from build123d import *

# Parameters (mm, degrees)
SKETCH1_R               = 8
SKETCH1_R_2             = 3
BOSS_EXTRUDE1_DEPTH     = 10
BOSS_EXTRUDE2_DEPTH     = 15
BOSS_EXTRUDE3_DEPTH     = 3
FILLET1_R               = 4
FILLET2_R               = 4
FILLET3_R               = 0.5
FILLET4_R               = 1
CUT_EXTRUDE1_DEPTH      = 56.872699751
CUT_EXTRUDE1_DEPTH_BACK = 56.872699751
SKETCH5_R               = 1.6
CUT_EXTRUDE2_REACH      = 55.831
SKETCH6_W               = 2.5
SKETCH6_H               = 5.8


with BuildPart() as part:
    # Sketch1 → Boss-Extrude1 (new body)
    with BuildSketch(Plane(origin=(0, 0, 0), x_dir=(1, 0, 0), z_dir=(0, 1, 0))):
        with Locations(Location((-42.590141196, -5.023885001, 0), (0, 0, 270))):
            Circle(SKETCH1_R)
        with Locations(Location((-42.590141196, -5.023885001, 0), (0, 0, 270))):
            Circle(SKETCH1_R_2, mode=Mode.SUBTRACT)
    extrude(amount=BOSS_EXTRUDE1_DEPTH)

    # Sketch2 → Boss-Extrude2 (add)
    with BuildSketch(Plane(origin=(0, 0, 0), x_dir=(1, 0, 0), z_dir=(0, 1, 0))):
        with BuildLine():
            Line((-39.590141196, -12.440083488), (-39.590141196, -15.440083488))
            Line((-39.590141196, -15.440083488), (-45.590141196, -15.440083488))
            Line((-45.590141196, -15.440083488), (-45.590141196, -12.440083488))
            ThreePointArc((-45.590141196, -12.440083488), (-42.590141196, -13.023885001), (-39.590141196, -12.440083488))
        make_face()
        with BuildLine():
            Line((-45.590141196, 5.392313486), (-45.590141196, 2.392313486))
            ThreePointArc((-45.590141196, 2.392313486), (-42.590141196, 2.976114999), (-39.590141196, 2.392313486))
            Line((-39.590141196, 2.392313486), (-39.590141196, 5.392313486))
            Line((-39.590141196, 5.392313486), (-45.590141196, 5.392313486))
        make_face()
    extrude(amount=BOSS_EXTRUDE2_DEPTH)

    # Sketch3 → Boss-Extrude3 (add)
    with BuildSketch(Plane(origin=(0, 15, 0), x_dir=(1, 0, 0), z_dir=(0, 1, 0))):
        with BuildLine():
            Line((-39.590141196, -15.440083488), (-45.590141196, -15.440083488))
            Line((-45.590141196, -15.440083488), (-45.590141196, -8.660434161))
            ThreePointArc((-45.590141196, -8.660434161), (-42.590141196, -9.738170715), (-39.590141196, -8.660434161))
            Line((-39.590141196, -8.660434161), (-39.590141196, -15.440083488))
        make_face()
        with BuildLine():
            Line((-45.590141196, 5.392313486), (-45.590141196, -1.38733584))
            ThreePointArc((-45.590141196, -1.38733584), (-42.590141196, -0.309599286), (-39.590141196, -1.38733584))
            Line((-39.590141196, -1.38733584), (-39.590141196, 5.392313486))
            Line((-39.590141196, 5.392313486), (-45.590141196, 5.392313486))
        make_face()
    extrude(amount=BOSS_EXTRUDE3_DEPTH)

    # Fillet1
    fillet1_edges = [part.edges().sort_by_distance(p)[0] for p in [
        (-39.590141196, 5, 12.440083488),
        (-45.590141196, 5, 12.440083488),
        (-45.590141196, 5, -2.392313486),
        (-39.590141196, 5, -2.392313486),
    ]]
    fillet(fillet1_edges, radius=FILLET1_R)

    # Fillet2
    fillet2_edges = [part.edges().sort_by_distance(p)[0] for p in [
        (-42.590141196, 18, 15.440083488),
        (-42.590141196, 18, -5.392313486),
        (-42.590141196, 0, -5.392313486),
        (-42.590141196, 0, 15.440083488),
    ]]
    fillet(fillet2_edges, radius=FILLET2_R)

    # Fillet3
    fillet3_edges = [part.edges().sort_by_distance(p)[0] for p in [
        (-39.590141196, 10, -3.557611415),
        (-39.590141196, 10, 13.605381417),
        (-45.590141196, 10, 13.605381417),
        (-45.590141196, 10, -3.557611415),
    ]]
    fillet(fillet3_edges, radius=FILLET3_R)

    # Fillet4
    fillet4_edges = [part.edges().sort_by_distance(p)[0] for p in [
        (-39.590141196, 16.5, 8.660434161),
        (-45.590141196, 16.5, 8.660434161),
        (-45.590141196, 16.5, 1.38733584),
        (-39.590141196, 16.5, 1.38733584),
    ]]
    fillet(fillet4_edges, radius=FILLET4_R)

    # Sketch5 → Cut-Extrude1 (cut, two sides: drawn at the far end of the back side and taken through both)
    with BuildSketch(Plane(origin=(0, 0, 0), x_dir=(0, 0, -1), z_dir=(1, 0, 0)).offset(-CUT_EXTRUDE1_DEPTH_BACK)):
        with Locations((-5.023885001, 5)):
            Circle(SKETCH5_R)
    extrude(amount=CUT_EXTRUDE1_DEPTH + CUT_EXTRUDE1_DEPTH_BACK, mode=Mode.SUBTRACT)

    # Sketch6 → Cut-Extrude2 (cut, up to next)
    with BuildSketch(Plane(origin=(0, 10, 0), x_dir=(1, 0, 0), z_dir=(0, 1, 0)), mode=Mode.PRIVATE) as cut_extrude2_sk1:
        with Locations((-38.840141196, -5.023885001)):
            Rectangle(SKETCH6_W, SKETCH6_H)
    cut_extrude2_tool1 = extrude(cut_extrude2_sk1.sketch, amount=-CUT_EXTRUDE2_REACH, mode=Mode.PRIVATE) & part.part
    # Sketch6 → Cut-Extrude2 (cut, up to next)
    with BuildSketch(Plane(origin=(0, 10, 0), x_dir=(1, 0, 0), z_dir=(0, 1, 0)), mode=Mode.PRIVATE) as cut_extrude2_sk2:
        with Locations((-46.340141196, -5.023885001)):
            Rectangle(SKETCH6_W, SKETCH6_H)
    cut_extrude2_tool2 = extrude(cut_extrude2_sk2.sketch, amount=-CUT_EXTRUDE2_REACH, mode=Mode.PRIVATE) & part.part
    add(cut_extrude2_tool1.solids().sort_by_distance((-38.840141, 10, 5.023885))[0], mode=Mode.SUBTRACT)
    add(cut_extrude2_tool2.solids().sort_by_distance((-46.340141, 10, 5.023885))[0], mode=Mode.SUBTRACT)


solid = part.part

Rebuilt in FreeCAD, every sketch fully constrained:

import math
import FreeCAD as App
import Part
import Sketcher

V = App.Vector


def edges_at(feature, points):
    """Names of the edges that pass closest to the given points."""
    edges = feature.Shape.Edges
    near = lambda p: min(range(len(edges)), key=lambda i: edges[i].distToShape(Part.Vertex(*p))[0])
    return sorted({f"Edge{near(p) + 1}" for p in points})


def add_polygon(sketch, points):
    """Adds a closed chain of lines whose ends are joined by coincident constraints."""
    first, n = sketch.GeometryCount, len(points)
    for a, b in zip(points, points[1:] + points[:1]):
        sketch.addGeometry(Part.LineSegment(App.Vector(*a, 0), App.Vector(*b, 0)), False)
    for i in range(n):
        sketch.addConstraint(Sketcher.Constraint("Coincident", first + i, 2, first + (i + 1) % n, 1))

doc = App.newDocument("Part")
params = doc.addObject("Spreadsheet::Sheet", "Params")
for row, (alias, value) in enumerate([
    ("sketch1_diameter", "16 mm"),
    ("sketch1_diameter2", "6 mm"),
    ("pad1_length", "10 mm"),
    ("sketch2_radius", "8 mm"),
    ("sketch2_width", "6 mm"),
    ("sketch2_height", "3 mm"),
    ("pad2_length", "15 mm"),
    ("sketch3_width", "6 mm"),
    ("pad3_length", "3 mm"),
    ("fillet_radius", "4 mm"),
    ("fillet2_radius", "4 mm"),
    ("fillet3_radius", "0.5 mm"),
    ("fillet4_radius", "1 mm"),
    ("sketch4_diameter", "3.2 mm"),
    ("sketch5_width", "2.5 mm"),
    ("sketch5_height", "5.8 mm"),
    ("pocket2_length", "10 mm"),
    ("sketch6_width", "2.5 mm"),
    ("sketch6_height", "5.8 mm"),
    ("pocket3_length", "10 mm"),
], start=1):
    params.set(f"A{row}", alias)
    params.set(f"B{row}", "=" + value)
    params.setAlias(f"B{row}", alias)

body = doc.addObject("PartDesign::Body", "Body")

# Sketch on XZ plane
sketch1 = body.newObject("Sketcher::SketchObject", "Sketch")
sketch1.AttachmentSupport = (doc.getObject("XZ_Plane"), [""])
sketch1.MapMode = "FlatFace"
sketch1.addGeometry(Part.Circle(V(-42.6, 5, 0), V(0, 0, 1), 8), False)
sketch1.addGeometry(Part.Circle(V(-42.6, 5, 0), V(0, 0, 1), 3), False)
sketch1.addConstraint(Sketcher.Constraint("Coincident", 1, 3, 0, 3))
sketch1.addConstraint(Sketcher.Constraint("Diameter", 0, 16.0))
sketch1.addConstraint(Sketcher.Constraint("Diameter", 1, 6.0))
sketch1.addConstraint(Sketcher.Constraint("DistanceX", 0, 3, -1, 1, 42.590141))
sketch1.addConstraint(Sketcher.Constraint("DistanceY", -1, 1, 0, 3, 5.023885))
sketch1.setExpression("Constraints[1]", "Params.sketch1_diameter")
sketch1.setExpression("Constraints[2]", "Params.sketch1_diameter2")
pad1 = body.newObject("PartDesign::Pad", "Pad")
pad1.Profile = sketch1
pad1.setExpression("Length", "Params.pad1_length")
pad1.Reversed = True

# Sketch on XZ plane
sketch2 = body.newObject("Sketcher::SketchObject", "Sketch001")
sketch2.AttachmentSupport = (doc.getObject("XZ_Plane"), [""])
sketch2.MapMode = "FlatFace"
sketch2.addGeometry(Part.LineSegment(V(-39.6, 15.4, 0), V(-39.6, 12.4, 0)), False)
sketch2.addGeometry(Part.ArcOfCircle(Part.Circle(V(-42.6, 5, 0), V(0, 0, 1), 8), math.radians(68), math.radians(112)), False)
sketch2.addGeometry(Part.LineSegment(V(-45.6, 12.4, 0), V(-45.6, 15.4, 0)), False)
sketch2.addGeometry(Part.LineSegment(V(-45.6, 15.4, 0), V(-39.6, 15.4, 0)), False)
sketch2.addGeometry(Part.LineSegment(V(-45.6, -5.4, 0), V(-45.6, -2.4, 0)), False)
sketch2.addGeometry(Part.ArcOfCircle(Part.Circle(V(-42.6, 5, 0), V(0, 0, 1), 8), math.radians(-112), math.radians(-68)), False)
sketch2.addGeometry(Part.LineSegment(V(-39.6, -2.4, 0), V(-39.6, -5.4, 0)), False)
sketch2.addGeometry(Part.LineSegment(V(-39.6, -5.4, 0), V(-45.6, -5.4, 0)), False)
sketch2.addConstraint(Sketcher.Constraint("Coincident", 0, 2, 1, 1))
sketch2.addConstraint(Sketcher.Constraint("Coincident", 1, 2, 2, 1))
sketch2.addConstraint(Sketcher.Constraint("Coincident", 2, 2, 3, 1))
sketch2.addConstraint(Sketcher.Constraint("Coincident", 3, 2, 0, 1))
sketch2.addConstraint(Sketcher.Constraint("Coincident", 4, 2, 5, 1))
sketch2.addConstraint(Sketcher.Constraint("Coincident", 5, 2, 6, 1))
sketch2.addConstraint(Sketcher.Constraint("Coincident", 6, 2, 7, 1))
sketch2.addConstraint(Sketcher.Constraint("Coincident", 7, 2, 4, 1))
sketch2.addConstraint(Sketcher.Constraint("Vertical", 0))
sketch2.addConstraint(Sketcher.Constraint("Vertical", 2))
sketch2.addConstraint(Sketcher.Constraint("Horizontal", 3))
sketch2.addConstraint(Sketcher.Constraint("Vertical", 4))
sketch2.addConstraint(Sketcher.Constraint("Vertical", 6))
sketch2.addConstraint(Sketcher.Constraint("Horizontal", 7))
sketch2.addConstraint(Sketcher.Constraint("Coincident", 5, 3, 1, 3))
sketch2.addConstraint(Sketcher.Constraint("Equal", 1, 5))
sketch2.addConstraint(Sketcher.Constraint("Horizontal", 0, 2, 1, 2))
sketch2.addConstraint(Sketcher.Constraint("Horizontal", 4, 2, 5, 2))
sketch2.addConstraint(Sketcher.Constraint("Vertical", 2, 2, 4, 2))
sketch2.addConstraint(Sketcher.Constraint("Equal", 2, 4))
sketch2.addConstraint(Sketcher.Constraint("Radius", 1, 8.0))
sketch2.addConstraint(Sketcher.Constraint("DistanceX", 3, 1, 3, 2, 6.0))
sketch2.addConstraint(Sketcher.Constraint("DistanceY", 0, 2, 0, 1, 3.0))
sketch2.addConstraint(Sketcher.Constraint("DistanceX", 1, 3, -1, 1, 42.590141))
sketch2.addConstraint(Sketcher.Constraint("DistanceY", -1, 1, 1, 3, 5.023885))
sketch2.setExpression("Constraints[20]", "Params.sketch2_radius")
sketch2.setExpression("Constraints[21]", "Params.sketch2_width")
sketch2.setExpression("Constraints[22]", "Params.sketch2_height")
pad2 = body.newObject("PartDesign::Pad", "Pad001")
pad2.Profile = sketch2
pad2.setExpression("Length", "Params.pad2_length")
pad2.Reversed = True

# Sketch on XZ plane
sketch3 = body.newObject("Sketcher::SketchObject", "Sketch002")
sketch3.AttachmentSupport = (doc.getObject("XZ_Plane"), [""])
sketch3.MapMode = "FlatFace"
sketch3.AttachmentOffset = App.Placement(V(0, 0, -15), App.Rotation())
sketch3.addGeometry(Part.LineSegment(V(-45.6, 15.4, 0), V(-39.6, 15.4, 0)), False)
sketch3.addGeometry(Part.LineSegment(V(-39.6, 15.4, 0), V(-39.6, 8.7, 0)), False)
sketch3.addGeometry(Part.ArcOfCircle(Part.Circle(V(-42.6, 5, 0), V(0, 0, 1), 4.7), math.radians(50), math.radians(130)), False)
sketch3.addGeometry(Part.LineSegment(V(-45.6, 8.7, 0), V(-45.6, 15.4, 0)), False)
sketch3.addGeometry(Part.LineSegment(V(-45.6, -5.4, 0), V(-45.6, 1.4, 0)), False)
sketch3.addGeometry(Part.ArcOfCircle(Part.Circle(V(-42.6, 5, 0), V(0, 0, 1), 4.7), math.radians(-130), math.radians(-50)), False)
sketch3.addGeometry(Part.LineSegment(V(-39.6, 1.4, 0), V(-39.6, -5.4, 0)), False)
sketch3.addGeometry(Part.LineSegment(V(-39.6, -5.4, 0), V(-45.6, -5.4, 0)), False)
sketch3.addConstraint(Sketcher.Constraint("Coincident", 0, 2, 1, 1))
sketch3.addConstraint(Sketcher.Constraint("Coincident", 1, 2, 2, 1))
sketch3.addConstraint(Sketcher.Constraint("Coincident", 2, 2, 3, 1))
sketch3.addConstraint(Sketcher.Constraint("Coincident", 3, 2, 0, 1))
sketch3.addConstraint(Sketcher.Constraint("Coincident", 4, 2, 5, 1))
sketch3.addConstraint(Sketcher.Constraint("Coincident", 5, 2, 6, 1))
sketch3.addConstraint(Sketcher.Constraint("Coincident", 6, 2, 7, 1))
sketch3.addConstraint(Sketcher.Constraint("Coincident", 7, 2, 4, 1))
sketch3.addConstraint(Sketcher.Constraint("Horizontal", 0))
sketch3.addConstraint(Sketcher.Constraint("Vertical", 1))
sketch3.addConstraint(Sketcher.Constraint("Vertical", 3))
sketch3.addConstraint(Sketcher.Constraint("Vertical", 4))
sketch3.addConstraint(Sketcher.Constraint("Vertical", 6))
sketch3.addConstraint(Sketcher.Constraint("Horizontal", 7))
sketch3.addConstraint(Sketcher.Constraint("Coincident", 5, 3, 2, 3))
sketch3.addConstraint(Sketcher.Constraint("Equal", 2, 5))
sketch3.addConstraint(Sketcher.Constraint("Horizontal", 1, 2, 2, 2))
sketch3.addConstraint(Sketcher.Constraint("Horizontal", 4, 2, 5, 2))
sketch3.addConstraint(Sketcher.Constraint("Vertical", 3, 2, 4, 2))
sketch3.addConstraint(Sketcher.Constraint("Equal", 3, 4))
sketch3.addConstraint(Sketcher.Constraint("DistanceX", 0, 1, 0, 2, 6.0))
sketch3.addConstraint(Sketcher.Constraint("Radius", 2, 4.714286))
sketch3.addConstraint(Sketcher.Constraint("DistanceY", 1, 2, 1, 1, 6.779649))
sketch3.addConstraint(Sketcher.Constraint("DistanceX", 2, 3, -1, 1, 42.590141))
sketch3.addConstraint(Sketcher.Constraint("DistanceY", -1, 1, 2, 3, 5.023885))
sketch3.setExpression("Constraints[20]", "Params.sketch3_width")
pad3 = body.newObject("PartDesign::Pad", "Pad002")
pad3.Profile = sketch3
pad3.setExpression("Length", "Params.pad3_length")
pad3.Reversed = True
doc.recompute()

fillet = body.newObject("PartDesign::Fillet", "Fillet")
fillet.Base = (pad3, edges_at(pad3, [
    (-39.59, 5, 12.44),
    (-45.59, 5, 12.44),
    (-45.59, 5, -2.392),
    (-39.59, 5, -2.392),
]))
fillet.setExpression("Radius", "Params.fillet_radius")
doc.recompute()

fillet2 = body.newObject("PartDesign::Fillet", "Fillet001")
fillet2.Base = (fillet, edges_at(fillet, [
    (-42.59, 18, 15.44),
    (-42.59, 18, -5.392),
    (-42.59, 0, -5.392),
    (-42.59, 0, 15.44),
]))
fillet2.setExpression("Radius", "Params.fillet2_radius")
doc.recompute()

fillet3 = body.newObject("PartDesign::Fillet", "Fillet002")
fillet3.Base = (fillet2, edges_at(fillet2, [
    (-39.59, 10, -3.558),
    (-39.59, 10, 13.605),
    (-45.59, 10, 13.605),
    (-45.59, 10, -3.558),
]))
fillet3.setExpression("Radius", "Params.fillet3_radius")
doc.recompute()

fillet4 = body.newObject("PartDesign::Fillet", "Fillet003")
fillet4.Base = (fillet3, edges_at(fillet3, [
    (-39.59, 16.5, 8.66),
    (-45.59, 16.5, 8.66),
    (-45.59, 16.5, 1.387),
    (-39.59, 16.5, 1.387),
]))
fillet4.setExpression("Radius", "Params.fillet4_radius")

# Sketch on YZ plane
sketch4 = body.newObject("Sketcher::SketchObject", "Sketch003")
sketch4.AttachmentSupport = (doc.getObject("YZ_Plane"), [""])
sketch4.MapMode = "FlatFace"
sketch4.addGeometry(Part.Circle(V(5, 5, 0), V(0, 0, 1), 1.6), False)
sketch4.addConstraint(Sketcher.Constraint("Diameter", 0, 3.2))
sketch4.addConstraint(Sketcher.Constraint("DistanceX", -1, 1, 0, 3, 5.0))
sketch4.addConstraint(Sketcher.Constraint("DistanceY", -1, 1, 0, 3, 5.023885))
sketch4.setExpression("Constraints[0]", "Params.sketch4_diameter")
pocket1 = body.newObject("PartDesign::Pocket", "Pocket")
pocket1.Profile = sketch4
pocket1.Type = "ThroughAll"
pocket1.Midplane = True

# Sketch on XZ plane
sketch5 = body.newObject("Sketcher::SketchObject", "Sketch004")
sketch5.AttachmentSupport = (doc.getObject("XZ_Plane"), [""])
sketch5.MapMode = "FlatFace"
sketch5.AttachmentOffset = App.Placement(V(0, 0, -10), App.Rotation())
add_polygon(sketch5, [(-40.1, 2.1), (-40.1, 7.9), (-37.6, 7.9), (-37.6, 2.1)])  # lines 0-3
sketch5.addConstraint(Sketcher.Constraint("Vertical", 0))
sketch5.addConstraint(Sketcher.Constraint("Horizontal", 1))
sketch5.addConstraint(Sketcher.Constraint("Vertical", 2))
sketch5.addConstraint(Sketcher.Constraint("Horizontal", 3))
sketch5.addConstraint(Sketcher.Constraint("DistanceX", 1, 1, 1, 2, 2.5))
sketch5.addConstraint(Sketcher.Constraint("DistanceY", 0, 1, 0, 2, 5.8))
sketch5.addConstraint(Sketcher.Constraint("DistanceX", 0, 2, -1, 1, 40.090141))
sketch5.addConstraint(Sketcher.Constraint("DistanceY", -1, 1, 0, 2, 7.923885))
sketch5.setExpression("Constraints[8]", "Params.sketch5_width")
sketch5.setExpression("Constraints[9]", "Params.sketch5_height")
pocket2 = body.newObject("PartDesign::Pocket", "Pocket001")
pocket2.Profile = sketch5
pocket2.setExpression("Length", "Params.pocket2_length")
pocket2.Reversed = True

# Sketch on XZ plane
sketch6 = body.newObject("Sketcher::SketchObject", "Sketch005")
sketch6.AttachmentSupport = (doc.getObject("XZ_Plane"), [""])
sketch6.MapMode = "FlatFace"
sketch6.AttachmentOffset = App.Placement(V(0, 0, -10), App.Rotation())
add_polygon(sketch6, [(-47.6, 2.1), (-47.6, 7.9), (-45.1, 7.9), (-45.1, 2.1)])  # lines 0-3
sketch6.addConstraint(Sketcher.Constraint("Vertical", 0))
sketch6.addConstraint(Sketcher.Constraint("Horizontal", 1))
sketch6.addConstraint(Sketcher.Constraint("Vertical", 2))
sketch6.addConstraint(Sketcher.Constraint("Horizontal", 3))
sketch6.addConstraint(Sketcher.Constraint("DistanceX", 1, 1, 1, 2, 2.5))
sketch6.addConstraint(Sketcher.Constraint("DistanceY", 0, 1, 0, 2, 5.8))
sketch6.addConstraint(Sketcher.Constraint("DistanceX", 0, 2, -1, 1, 47.590141))
sketch6.addConstraint(Sketcher.Constraint("DistanceY", -1, 1, 0, 2, 7.923885))
sketch6.setExpression("Constraints[8]", "Params.sketch6_width")
sketch6.setExpression("Constraints[9]", "Params.sketch6_height")
pocket3 = body.newObject("PartDesign::Pocket", "Pocket002")
pocket3.Profile = sketch6
pocket3.setExpression("Length", "Params.pocket3_length")
pocket3.Reversed = True

doc.recompute()
